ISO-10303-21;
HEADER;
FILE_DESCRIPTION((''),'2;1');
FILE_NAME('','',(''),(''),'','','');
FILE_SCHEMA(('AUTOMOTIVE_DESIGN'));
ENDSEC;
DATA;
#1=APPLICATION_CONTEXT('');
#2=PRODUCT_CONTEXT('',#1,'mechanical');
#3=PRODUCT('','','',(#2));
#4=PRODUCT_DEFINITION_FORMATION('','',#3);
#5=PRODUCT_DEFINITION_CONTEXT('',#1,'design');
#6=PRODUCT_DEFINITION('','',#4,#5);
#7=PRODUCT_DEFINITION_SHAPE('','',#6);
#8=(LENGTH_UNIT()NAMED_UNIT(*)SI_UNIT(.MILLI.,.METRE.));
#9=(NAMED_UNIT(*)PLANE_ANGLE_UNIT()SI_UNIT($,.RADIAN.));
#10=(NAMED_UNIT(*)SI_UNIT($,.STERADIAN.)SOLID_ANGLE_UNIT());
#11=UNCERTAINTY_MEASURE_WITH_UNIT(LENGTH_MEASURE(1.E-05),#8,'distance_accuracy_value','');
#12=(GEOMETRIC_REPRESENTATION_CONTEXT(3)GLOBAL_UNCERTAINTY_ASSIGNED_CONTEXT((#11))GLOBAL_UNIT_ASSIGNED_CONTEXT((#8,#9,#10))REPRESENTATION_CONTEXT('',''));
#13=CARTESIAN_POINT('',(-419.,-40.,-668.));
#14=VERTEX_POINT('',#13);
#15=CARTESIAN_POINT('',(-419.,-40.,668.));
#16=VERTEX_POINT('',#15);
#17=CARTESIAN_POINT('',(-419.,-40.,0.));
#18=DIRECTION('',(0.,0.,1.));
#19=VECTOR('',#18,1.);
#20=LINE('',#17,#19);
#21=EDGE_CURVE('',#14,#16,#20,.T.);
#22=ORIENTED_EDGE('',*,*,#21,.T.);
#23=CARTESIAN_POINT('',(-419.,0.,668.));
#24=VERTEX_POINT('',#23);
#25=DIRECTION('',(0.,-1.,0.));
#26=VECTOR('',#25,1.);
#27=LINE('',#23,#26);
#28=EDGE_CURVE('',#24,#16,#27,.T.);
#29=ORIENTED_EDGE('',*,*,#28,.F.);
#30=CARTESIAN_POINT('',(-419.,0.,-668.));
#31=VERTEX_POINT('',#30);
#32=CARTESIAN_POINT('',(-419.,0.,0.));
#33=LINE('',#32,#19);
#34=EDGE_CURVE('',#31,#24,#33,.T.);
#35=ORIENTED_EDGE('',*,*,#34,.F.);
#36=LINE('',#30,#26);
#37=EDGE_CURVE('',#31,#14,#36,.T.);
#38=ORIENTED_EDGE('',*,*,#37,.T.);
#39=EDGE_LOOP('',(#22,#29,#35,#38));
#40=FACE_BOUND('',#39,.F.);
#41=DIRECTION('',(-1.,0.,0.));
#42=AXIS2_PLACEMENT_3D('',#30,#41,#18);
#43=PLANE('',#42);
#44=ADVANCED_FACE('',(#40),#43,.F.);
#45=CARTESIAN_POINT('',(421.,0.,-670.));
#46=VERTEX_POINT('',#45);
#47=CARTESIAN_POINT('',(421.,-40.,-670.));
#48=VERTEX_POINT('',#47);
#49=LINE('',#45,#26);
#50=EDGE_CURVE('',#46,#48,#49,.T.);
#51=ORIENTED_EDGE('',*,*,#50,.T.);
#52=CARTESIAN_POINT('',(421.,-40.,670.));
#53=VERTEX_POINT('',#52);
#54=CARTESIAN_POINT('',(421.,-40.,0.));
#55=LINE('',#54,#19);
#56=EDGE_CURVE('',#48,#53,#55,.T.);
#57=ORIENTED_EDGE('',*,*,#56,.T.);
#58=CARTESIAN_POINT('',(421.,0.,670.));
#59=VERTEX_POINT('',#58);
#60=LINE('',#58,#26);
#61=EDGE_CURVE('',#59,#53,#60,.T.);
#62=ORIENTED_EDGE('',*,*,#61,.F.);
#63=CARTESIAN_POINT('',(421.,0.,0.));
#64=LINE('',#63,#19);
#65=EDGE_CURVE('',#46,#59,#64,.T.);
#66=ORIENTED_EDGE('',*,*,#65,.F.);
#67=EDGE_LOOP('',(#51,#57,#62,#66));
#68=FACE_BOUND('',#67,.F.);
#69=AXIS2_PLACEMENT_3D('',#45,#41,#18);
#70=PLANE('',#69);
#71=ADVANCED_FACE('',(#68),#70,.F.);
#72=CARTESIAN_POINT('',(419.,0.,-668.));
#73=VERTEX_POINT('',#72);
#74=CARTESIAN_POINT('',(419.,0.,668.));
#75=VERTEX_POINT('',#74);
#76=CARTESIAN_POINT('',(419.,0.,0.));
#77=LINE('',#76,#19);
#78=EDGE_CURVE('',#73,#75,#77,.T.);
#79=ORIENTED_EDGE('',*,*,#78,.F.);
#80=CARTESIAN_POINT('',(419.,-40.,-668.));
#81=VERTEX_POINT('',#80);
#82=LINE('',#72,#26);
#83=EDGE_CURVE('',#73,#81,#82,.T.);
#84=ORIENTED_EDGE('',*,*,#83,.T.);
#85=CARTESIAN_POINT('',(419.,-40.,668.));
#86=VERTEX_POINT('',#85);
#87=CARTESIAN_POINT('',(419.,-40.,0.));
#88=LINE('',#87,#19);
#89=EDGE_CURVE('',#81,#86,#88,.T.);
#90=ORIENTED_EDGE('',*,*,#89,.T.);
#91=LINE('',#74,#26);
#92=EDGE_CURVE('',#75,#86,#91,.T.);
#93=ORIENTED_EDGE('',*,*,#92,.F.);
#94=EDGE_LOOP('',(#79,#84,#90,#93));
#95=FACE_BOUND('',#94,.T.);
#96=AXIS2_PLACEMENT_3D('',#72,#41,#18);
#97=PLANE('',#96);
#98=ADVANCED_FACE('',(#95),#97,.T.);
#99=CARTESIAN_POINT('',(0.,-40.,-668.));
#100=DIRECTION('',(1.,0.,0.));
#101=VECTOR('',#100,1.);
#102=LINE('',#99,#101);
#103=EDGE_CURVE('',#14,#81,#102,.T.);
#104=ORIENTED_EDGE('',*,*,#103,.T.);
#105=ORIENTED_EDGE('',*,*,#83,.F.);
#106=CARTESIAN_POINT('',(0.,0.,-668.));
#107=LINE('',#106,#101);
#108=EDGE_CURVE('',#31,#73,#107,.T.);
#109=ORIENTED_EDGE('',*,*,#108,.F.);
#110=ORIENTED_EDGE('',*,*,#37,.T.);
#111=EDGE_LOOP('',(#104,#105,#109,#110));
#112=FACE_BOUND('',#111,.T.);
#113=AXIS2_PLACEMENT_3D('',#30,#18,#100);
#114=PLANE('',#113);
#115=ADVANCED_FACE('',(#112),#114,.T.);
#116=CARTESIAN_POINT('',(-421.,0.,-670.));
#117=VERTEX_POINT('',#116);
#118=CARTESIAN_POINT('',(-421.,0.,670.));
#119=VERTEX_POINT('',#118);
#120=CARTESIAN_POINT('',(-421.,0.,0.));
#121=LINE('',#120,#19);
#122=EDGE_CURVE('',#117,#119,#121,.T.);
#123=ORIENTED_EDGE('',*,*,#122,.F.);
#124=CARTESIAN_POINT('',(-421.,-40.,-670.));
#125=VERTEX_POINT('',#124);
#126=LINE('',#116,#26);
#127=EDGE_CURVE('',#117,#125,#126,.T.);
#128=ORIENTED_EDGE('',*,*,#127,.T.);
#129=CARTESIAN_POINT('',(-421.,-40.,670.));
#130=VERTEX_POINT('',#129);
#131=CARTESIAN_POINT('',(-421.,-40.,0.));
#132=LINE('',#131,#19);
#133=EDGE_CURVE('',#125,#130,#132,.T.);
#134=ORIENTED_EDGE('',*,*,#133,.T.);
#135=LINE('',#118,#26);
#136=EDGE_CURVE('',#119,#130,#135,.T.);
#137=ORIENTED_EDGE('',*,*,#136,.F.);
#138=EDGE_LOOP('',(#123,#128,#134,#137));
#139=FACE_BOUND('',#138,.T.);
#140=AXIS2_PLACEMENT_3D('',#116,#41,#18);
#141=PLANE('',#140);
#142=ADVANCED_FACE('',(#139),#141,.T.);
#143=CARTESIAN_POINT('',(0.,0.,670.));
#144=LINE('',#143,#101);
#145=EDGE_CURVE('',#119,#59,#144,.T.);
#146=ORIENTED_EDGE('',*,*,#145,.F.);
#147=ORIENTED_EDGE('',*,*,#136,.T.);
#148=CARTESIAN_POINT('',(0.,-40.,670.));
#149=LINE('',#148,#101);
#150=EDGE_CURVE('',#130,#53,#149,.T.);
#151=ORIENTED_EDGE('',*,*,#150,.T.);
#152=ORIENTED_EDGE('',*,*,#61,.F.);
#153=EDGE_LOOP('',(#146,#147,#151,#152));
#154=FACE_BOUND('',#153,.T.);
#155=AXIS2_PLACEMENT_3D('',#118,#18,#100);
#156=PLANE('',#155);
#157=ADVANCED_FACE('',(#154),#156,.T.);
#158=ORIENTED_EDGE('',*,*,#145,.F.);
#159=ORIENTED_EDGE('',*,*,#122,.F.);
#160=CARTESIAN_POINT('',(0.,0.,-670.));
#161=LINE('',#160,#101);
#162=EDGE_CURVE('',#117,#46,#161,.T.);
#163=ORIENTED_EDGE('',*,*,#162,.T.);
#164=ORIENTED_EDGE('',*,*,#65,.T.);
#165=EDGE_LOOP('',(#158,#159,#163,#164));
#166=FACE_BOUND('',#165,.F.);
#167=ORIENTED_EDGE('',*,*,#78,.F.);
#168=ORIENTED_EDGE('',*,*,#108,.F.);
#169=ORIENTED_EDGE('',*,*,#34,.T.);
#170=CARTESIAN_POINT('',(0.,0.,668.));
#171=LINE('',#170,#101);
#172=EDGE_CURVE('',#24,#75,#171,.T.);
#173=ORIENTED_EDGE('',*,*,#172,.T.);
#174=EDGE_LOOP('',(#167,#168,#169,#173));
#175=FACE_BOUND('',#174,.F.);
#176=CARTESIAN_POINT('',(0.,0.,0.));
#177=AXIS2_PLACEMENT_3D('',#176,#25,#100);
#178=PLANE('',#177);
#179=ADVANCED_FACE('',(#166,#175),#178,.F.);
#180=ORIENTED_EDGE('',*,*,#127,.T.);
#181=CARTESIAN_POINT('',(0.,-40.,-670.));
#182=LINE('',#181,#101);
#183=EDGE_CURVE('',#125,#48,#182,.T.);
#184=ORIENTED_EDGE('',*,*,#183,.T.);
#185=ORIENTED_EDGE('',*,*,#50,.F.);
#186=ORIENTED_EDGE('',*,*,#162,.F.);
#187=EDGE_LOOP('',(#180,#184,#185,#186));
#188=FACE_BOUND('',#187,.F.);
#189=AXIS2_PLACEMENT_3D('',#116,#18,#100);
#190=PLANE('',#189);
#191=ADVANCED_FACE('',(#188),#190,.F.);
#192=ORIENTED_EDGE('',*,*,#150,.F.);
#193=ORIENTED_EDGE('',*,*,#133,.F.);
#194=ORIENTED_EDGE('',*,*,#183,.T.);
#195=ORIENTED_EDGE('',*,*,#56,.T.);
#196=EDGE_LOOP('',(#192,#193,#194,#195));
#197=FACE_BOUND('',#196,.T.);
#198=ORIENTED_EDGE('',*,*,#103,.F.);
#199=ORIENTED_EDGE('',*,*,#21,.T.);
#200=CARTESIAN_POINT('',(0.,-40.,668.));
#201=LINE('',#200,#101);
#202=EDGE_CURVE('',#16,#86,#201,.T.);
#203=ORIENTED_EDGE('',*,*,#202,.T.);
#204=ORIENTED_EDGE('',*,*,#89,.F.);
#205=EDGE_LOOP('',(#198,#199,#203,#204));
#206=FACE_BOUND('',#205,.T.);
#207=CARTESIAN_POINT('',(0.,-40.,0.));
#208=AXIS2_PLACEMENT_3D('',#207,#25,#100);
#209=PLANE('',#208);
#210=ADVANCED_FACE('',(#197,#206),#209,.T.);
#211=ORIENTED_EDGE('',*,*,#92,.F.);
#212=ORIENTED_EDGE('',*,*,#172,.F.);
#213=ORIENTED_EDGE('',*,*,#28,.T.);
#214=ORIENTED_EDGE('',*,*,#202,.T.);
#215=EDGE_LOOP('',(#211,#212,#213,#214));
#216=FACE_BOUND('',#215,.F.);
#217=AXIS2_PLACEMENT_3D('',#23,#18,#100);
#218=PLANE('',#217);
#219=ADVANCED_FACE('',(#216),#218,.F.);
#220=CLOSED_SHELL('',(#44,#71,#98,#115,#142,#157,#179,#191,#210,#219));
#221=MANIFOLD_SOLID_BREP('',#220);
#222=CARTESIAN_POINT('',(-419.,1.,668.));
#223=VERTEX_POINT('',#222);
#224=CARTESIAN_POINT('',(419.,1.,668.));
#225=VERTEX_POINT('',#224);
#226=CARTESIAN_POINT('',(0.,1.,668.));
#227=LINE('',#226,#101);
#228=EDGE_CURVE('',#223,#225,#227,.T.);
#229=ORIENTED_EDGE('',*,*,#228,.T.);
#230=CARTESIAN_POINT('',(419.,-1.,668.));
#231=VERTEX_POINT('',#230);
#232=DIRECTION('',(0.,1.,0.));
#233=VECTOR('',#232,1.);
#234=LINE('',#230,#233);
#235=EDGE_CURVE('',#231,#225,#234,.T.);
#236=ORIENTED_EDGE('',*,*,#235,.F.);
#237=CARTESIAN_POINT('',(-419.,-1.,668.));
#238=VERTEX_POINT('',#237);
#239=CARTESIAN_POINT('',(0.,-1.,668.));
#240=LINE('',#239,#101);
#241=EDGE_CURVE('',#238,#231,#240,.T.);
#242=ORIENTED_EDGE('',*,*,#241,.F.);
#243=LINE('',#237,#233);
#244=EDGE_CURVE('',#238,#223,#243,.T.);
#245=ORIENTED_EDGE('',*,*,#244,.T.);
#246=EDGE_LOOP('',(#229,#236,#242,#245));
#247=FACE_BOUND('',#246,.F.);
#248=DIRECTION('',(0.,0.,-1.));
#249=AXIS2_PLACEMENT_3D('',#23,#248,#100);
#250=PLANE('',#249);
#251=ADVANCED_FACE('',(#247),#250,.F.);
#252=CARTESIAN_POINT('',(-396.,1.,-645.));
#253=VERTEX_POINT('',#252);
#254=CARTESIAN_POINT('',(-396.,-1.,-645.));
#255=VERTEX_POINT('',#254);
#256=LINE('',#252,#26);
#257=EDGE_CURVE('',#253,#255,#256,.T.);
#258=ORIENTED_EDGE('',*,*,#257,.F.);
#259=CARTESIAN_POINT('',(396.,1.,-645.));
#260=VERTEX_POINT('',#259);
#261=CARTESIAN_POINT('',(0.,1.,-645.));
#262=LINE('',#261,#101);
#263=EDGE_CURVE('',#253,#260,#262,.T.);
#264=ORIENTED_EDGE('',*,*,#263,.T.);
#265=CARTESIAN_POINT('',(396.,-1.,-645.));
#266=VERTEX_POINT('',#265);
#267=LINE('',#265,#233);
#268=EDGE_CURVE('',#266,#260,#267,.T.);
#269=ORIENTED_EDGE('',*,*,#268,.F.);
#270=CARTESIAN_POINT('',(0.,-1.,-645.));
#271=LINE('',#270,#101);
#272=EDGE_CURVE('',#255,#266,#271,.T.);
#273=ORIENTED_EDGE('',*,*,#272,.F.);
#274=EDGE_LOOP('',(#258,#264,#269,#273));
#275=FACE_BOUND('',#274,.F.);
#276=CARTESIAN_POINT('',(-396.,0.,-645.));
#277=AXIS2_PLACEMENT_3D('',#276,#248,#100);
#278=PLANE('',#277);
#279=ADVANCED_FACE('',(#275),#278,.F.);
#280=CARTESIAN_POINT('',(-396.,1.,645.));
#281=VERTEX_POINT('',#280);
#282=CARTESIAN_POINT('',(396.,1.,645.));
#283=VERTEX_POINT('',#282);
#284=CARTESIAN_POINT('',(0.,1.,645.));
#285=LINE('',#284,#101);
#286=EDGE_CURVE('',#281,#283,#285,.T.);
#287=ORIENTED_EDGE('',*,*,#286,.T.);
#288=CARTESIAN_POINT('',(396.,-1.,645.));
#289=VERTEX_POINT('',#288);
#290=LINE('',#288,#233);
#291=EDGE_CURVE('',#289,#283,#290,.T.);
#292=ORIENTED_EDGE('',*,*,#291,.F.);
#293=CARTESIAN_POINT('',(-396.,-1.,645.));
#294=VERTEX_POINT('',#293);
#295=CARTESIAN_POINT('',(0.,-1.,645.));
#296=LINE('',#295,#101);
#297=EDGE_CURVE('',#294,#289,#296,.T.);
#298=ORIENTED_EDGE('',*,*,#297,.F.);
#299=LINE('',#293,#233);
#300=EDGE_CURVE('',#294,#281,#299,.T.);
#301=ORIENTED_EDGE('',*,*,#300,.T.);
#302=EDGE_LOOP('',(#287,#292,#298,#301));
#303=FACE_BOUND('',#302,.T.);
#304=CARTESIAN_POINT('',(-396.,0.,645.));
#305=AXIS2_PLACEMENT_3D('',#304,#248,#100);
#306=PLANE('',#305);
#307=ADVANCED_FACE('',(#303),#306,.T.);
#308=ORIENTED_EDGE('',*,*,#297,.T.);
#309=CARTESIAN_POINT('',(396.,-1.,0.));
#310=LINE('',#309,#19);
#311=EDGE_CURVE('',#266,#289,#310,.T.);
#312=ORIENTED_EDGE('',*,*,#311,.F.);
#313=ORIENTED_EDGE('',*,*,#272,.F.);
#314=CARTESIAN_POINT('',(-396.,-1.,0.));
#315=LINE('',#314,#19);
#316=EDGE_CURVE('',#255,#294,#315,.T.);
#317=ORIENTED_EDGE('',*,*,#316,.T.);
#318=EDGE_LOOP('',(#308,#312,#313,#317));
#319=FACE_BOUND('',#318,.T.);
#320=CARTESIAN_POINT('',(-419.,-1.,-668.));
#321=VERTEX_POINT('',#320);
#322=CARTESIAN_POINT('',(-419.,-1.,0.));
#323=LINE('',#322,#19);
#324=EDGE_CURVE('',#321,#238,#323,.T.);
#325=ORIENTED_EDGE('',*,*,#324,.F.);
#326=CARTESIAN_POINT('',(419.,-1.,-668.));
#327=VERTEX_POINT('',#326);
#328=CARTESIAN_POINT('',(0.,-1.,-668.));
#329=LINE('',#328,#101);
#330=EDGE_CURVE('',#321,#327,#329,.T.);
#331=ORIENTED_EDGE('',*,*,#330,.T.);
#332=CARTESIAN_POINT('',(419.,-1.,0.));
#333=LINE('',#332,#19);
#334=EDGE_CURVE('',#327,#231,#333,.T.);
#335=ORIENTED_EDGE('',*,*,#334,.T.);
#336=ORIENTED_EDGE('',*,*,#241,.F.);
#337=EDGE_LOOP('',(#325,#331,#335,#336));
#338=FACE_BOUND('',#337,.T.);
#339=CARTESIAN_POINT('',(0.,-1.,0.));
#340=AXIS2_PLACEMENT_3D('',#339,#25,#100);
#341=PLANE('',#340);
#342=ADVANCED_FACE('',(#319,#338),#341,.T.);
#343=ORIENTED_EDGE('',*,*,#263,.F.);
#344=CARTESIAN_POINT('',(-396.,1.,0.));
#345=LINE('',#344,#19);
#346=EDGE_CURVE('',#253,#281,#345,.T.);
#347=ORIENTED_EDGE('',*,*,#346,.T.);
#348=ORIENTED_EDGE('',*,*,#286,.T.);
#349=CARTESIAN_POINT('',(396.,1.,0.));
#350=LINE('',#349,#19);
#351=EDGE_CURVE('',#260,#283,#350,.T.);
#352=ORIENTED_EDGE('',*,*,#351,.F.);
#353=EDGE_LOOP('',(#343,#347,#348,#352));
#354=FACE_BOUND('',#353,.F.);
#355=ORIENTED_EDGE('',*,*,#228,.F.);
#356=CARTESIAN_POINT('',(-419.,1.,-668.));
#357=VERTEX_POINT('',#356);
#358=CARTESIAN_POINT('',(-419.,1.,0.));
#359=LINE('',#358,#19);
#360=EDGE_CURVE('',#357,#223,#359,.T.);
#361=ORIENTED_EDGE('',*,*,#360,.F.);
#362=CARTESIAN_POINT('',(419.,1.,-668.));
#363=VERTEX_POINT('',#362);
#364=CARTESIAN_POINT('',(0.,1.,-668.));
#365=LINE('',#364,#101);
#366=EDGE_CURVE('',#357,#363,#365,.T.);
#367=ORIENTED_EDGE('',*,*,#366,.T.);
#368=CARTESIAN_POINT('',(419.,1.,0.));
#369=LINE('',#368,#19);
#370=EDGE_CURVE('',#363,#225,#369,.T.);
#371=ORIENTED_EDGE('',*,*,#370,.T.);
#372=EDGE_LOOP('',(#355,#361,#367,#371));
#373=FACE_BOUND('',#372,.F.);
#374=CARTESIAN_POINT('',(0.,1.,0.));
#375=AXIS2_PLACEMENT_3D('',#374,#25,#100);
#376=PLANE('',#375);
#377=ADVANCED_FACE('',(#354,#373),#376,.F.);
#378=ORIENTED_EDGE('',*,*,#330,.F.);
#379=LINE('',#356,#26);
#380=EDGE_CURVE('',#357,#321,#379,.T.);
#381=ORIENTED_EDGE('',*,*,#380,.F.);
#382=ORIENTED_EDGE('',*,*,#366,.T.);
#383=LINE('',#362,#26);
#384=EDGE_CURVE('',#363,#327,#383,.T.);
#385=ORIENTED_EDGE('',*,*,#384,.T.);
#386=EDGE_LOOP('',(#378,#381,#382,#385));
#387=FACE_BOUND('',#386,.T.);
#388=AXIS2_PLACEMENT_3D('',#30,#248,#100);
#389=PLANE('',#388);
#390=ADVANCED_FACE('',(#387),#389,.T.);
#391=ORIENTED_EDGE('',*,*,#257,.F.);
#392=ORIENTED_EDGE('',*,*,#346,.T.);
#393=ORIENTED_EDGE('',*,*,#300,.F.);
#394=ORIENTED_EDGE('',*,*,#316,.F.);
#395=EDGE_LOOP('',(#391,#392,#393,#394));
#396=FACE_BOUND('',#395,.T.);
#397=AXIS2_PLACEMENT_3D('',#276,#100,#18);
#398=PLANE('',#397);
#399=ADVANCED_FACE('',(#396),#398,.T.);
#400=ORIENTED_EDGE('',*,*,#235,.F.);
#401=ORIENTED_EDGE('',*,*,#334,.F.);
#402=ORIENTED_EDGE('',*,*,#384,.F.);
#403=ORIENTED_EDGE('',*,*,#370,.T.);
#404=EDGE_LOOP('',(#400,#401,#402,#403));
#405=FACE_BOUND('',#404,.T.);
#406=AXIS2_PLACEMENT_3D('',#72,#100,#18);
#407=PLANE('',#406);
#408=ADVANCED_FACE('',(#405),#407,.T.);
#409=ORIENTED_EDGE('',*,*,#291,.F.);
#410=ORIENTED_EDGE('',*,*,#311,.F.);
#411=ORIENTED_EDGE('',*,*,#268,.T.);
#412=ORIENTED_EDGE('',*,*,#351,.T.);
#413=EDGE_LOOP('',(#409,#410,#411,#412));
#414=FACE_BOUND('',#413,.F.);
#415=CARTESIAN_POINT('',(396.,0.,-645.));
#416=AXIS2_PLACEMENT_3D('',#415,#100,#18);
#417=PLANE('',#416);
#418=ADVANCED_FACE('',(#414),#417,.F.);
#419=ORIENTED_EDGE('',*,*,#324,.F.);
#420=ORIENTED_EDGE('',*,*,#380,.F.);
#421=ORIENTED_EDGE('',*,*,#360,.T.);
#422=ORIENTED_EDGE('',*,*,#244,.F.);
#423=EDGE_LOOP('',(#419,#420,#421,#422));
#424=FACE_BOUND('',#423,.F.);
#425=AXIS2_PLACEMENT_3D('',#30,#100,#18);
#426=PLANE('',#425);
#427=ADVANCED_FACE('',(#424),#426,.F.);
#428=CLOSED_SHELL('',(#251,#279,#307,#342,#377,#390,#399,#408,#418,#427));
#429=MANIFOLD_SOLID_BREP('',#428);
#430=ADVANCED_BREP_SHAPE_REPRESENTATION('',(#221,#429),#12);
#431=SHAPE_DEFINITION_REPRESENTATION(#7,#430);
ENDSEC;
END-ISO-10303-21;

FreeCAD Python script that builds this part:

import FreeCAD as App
import Part
import Sketcher

V = App.Vector

doc = App.newDocument("Part")
params = doc.addObject("Spreadsheet::Sheet", "Params")
for row, (alias, value) in enumerate([
    ("sketch1_width", "838 mm"),
    ("sketch1_width2", "792 mm"),
    ("sketch1_height", "1336 mm"),
    ("sketch1_height2", "1290 mm"),
    ("pad1_length", "2 mm"),
    ("sketch2_width", "842 mm"),
    ("sketch2_width2", "838 mm"),
    ("sketch2_height", "1340 mm"),
    ("sketch2_height2", "1336 mm"),
    ("pad2_length", "40 mm"),
], start=1):
    params.set(f"A{row}", alias)
    params.set(f"B{row}", "=" + value)
    params.setAlias(f"B{row}", alias)

body = doc.addObject("PartDesign::Body", "Body")

sketch1 = body.newObject("Sketcher::SketchObject", "Sketch")
sketch1.AttachmentSupport = (doc.getObject("XZ_Plane"), [""])
sketch1.MapMode = "FlatFace"
sketch1.addGeometry([
    Part.LineSegment(V(-419, 668, 0), V(-419, -668, 0)),
    Part.LineSegment(V(-419, -668, 0), V(419, -668, 0)),
    Part.LineSegment(V(419, -668, 0), V(419, 668, 0)),
    Part.LineSegment(V(419, 668, 0), V(-419, 668, 0)),
    Part.LineSegment(V(396, -645, 0), V(-396, -645, 0)),
    Part.LineSegment(V(-396, -645, 0), V(-396, 645, 0)),
    Part.LineSegment(V(-396, 645, 0), V(396, 645, 0)),
    Part.LineSegment(V(396, 645, 0), V(396, -645, 0)),
], False)
sketch1.addConstraint([
    Sketcher.Constraint("Coincident", 0, 2, 1, 1),
    Sketcher.Constraint("Coincident", 1, 2, 2, 1),
    Sketcher.Constraint("Coincident", 2, 2, 3, 1),
    Sketcher.Constraint("Coincident", 3, 2, 0, 1),
    Sketcher.Constraint("Coincident", 4, 2, 5, 1),
    Sketcher.Constraint("Coincident", 5, 2, 6, 1),
    Sketcher.Constraint("Coincident", 6, 2, 7, 1),
    Sketcher.Constraint("Coincident", 7, 2, 4, 1),
    Sketcher.Constraint("Vertical", 0),
    Sketcher.Constraint("Horizontal", 1),
    Sketcher.Constraint("Vertical", 2),
    Sketcher.Constraint("Horizontal", 3),
    Sketcher.Constraint("Horizontal", 4),
    Sketcher.Constraint("Vertical", 5),
    Sketcher.Constraint("Horizontal", 6),
    Sketcher.Constraint("Vertical", 7),
    Sketcher.Constraint("Symmetric", 0, 2, 2, 2, -1, 1),
    Sketcher.Constraint("Symmetric", 4, 2, 6, 2, -1, 1),
    Sketcher.Constraint("DistanceX", 1, 1, 1, 2, 838.0),
    Sketcher.Constraint("DistanceX", 4, 2, 4, 1, 792.0),
    Sketcher.Constraint("DistanceY", 0, 2, 0, 1, 1336.0),
    Sketcher.Constraint("DistanceY", 5, 1, 5, 2, 1290.0),
])
sketch1.setExpression("Constraints[18]", "Params.sketch1_width")
sketch1.setExpression("Constraints[19]", "Params.sketch1_width2")
sketch1.setExpression("Constraints[20]", "Params.sketch1_height")
sketch1.setExpression("Constraints[21]", "Params.sketch1_height2")
pad1 = body.newObject("PartDesign::Pad", "Pad")
pad1.Profile = sketch1
pad1.setExpression("Length", "Params.pad1_length")
pad1.Midplane = True
body2 = doc.addObject("PartDesign::Body", "Body001")

sketch2 = body2.newObject("Sketcher::SketchObject", "Sketch001")
sketch2.AttachmentSupport = (doc.getObject("XZ_Plane001"), [""])
sketch2.MapMode = "FlatFace"
sketch2.addGeometry([
    Part.LineSegment(V(-421, 670, 0), V(-421, -670, 0)),
    Part.LineSegment(V(-421, -670, 0), V(421, -670, 0)),
    Part.LineSegment(V(421, -670, 0), V(421, 670, 0)),
    Part.LineSegment(V(421, 670, 0), V(-421, 670, 0)),
    Part.LineSegment(V(419, -668, 0), V(-419, -668, 0)),
    Part.LineSegment(V(-419, -668, 0), V(-419, 668, 0)),
    Part.LineSegment(V(-419, 668, 0), V(419, 668, 0)),
    Part.LineSegment(V(419, 668, 0), V(419, -668, 0)),
], False)
sketch2.addConstraint([
    Sketcher.Constraint("Coincident", 0, 2, 1, 1),
    Sketcher.Constraint("Coincident", 1, 2, 2, 1),
    Sketcher.Constraint("Coincident", 2, 2, 3, 1),
    Sketcher.Constraint("Coincident", 3, 2, 0, 1),
    Sketcher.Constraint("Coincident", 4, 2, 5, 1),
    Sketcher.Constraint("Coincident", 5, 2, 6, 1),
    Sketcher.Constraint("Coincident", 6, 2, 7, 1),
    Sketcher.Constraint("Coincident", 7, 2, 4, 1),
    Sketcher.Constraint("Vertical", 0),
    Sketcher.Constraint("Horizontal", 1),
    Sketcher.Constraint("Vertical", 2),
    Sketcher.Constraint("Horizontal", 3),
    Sketcher.Constraint("Horizontal", 4),
    Sketcher.Constraint("Vertical", 5),
    Sketcher.Constraint("Horizontal", 6),
    Sketcher.Constraint("Vertical", 7),
    Sketcher.Constraint("Symmetric", 0, 2, 2, 2, -1, 1),
    Sketcher.Constraint("Symmetric", 4, 2, 6, 2, -1, 1),
    Sketcher.Constraint("DistanceX", 1, 1, 1, 2, 842.0),
    Sketcher.Constraint("DistanceX", 4, 2, 4, 1, 838.0),
    Sketcher.Constraint("DistanceY", 0, 2, 0, 1, 1340.0),
    Sketcher.Constraint("DistanceY", 5, 1, 5, 2, 1336.0),
])
sketch2.setExpression("Constraints[18]", "Params.sketch2_width")
sketch2.setExpression("Constraints[19]", "Params.sketch2_width2")
sketch2.setExpression("Constraints[20]", "Params.sketch2_height")
sketch2.setExpression("Constraints[21]", "Params.sketch2_height2")
pad2 = body2.newObject("PartDesign::Pad", "Pad001")
pad2.Profile = sketch2
pad2.setExpression("Length", "Params.pad2_length")

doc.recompute()
